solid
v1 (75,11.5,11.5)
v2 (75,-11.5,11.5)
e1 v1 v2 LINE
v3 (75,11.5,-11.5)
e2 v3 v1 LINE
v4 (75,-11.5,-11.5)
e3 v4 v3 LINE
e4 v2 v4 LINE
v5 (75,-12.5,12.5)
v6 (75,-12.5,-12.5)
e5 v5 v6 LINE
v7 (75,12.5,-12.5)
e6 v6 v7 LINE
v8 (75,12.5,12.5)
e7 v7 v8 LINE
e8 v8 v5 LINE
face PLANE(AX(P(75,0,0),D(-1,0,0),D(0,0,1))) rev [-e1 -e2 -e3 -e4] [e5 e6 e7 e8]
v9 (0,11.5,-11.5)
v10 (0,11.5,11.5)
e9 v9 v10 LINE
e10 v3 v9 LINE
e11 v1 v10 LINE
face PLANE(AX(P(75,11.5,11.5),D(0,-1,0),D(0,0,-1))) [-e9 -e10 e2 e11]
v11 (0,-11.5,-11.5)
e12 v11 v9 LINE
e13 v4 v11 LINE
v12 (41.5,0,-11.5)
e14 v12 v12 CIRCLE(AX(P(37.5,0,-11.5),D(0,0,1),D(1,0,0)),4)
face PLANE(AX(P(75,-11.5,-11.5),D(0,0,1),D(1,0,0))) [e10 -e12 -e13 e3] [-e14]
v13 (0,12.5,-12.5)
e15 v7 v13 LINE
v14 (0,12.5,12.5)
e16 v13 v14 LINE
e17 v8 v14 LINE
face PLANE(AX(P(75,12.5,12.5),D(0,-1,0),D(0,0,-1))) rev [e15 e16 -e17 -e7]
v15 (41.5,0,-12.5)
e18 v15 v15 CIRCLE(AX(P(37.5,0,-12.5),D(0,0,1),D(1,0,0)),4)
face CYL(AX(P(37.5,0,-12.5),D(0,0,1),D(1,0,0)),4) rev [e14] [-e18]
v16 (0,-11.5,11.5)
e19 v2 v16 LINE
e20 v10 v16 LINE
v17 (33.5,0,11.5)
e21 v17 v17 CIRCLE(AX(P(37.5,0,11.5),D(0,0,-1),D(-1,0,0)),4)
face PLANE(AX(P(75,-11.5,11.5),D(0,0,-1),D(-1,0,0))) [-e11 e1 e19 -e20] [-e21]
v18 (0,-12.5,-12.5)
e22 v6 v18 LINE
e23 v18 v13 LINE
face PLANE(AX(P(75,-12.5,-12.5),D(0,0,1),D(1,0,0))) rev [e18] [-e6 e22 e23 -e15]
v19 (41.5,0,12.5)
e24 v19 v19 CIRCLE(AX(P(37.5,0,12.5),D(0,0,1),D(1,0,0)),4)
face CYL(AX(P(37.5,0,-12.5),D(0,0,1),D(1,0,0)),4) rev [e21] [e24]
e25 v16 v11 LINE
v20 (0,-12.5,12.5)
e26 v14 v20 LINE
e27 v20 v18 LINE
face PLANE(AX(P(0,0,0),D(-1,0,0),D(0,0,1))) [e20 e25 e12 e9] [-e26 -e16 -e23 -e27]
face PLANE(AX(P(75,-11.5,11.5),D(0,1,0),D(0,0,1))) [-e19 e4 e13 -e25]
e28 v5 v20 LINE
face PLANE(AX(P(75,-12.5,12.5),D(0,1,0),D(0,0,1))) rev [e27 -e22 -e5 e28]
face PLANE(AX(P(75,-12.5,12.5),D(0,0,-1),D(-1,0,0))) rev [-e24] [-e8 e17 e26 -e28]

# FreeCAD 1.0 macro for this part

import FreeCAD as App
import Part
import Sketcher

V = App.Vector


def add_polygon(sketch, points):
    """Adds a closed chain of lines whose ends are joined by coincident constraints."""
    first, n = sketch.GeometryCount, len(points)
    for a, b in zip(points, points[1:] + points[:1]):
        sketch.addGeometry(Part.LineSegment(App.Vector(*a, 0), App.Vector(*b, 0)), False)
    for i in range(n):
        sketch.addConstraint(Sketcher.Constraint("Coincident", first + i, 2, first + (i + 1) % n, 1))

doc = App.newDocument("Part")
body = doc.addObject("PartDesign::Body", "Body")

# Sketch on YZ plane
sketch1 = body.newObject("Sketcher::SketchObject", "Sketch")
sketch1.AttachmentSupport = (doc.getObject("YZ_Plane"), [""])
sketch1.MapMode = "FlatFace"
add_polygon(sketch1, [(12.5, 12.5), (-12.5, 12.5), (-12.5, -12.5), (12.5, -12.5)])  # lines 0-3
add_polygon(sketch1, [(-11.5, -11.5), (-11.5, 11.5), (11.5, 11.5), (11.5, -11.5)])  # lines 4-7
sketch1.addConstraint(Sketcher.Constraint("Horizontal", 0))
sketch1.addConstraint(Sketcher.Constraint("Vertical", 1))
sketch1.addConstraint(Sketcher.Constraint("Horizontal", 2))
sketch1.addConstraint(Sketcher.Constraint("Vertical", 3))
sketch1.addConstraint(Sketcher.Constraint("Vertical", 4))
sketch1.addConstraint(Sketcher.Constraint("Horizontal", 5))
sketch1.addConstraint(Sketcher.Constraint("Vertical", 6))
sketch1.addConstraint(Sketcher.Constraint("Horizontal", 7))
sketch1.addConstraint(Sketcher.Constraint("Symmetric", 0, 2, 2, 2, -1, 1))
sketch1.addConstraint(Sketcher.Constraint("Symmetric", 4, 2, 6, 2, -1, 1))
sketch1.addConstraint(Sketcher.Constraint("Equal", 2, 1))
sketch1.addConstraint(Sketcher.Constraint("Equal", 7, 4))
sketch1.addConstraint(Sketcher.Constraint("DistanceX", 0, 2, 0, 1, 25.0))
sketch1.addConstraint(Sketcher.Constraint("DistanceX", 5, 1, 5, 2, 23.0))
pad1 = body.newObject("PartDesign::Pad", "Pad")
pad1.Profile = sketch1
pad1.Length = 75

# Sketch on XY plane
sketch2 = body.newObject("Sketcher::SketchObject", "Sketch001")
sketch2.AttachmentSupport = (doc.getObject("XY_Plane"), [""])
sketch2.MapMode = "FlatFace"
sketch2.AttachmentOffset = App.Placement(V(0, 0, 12.5), App.Rotation())
sketch2.addGeometry(Part.Circle(V(37.5, 0, 0), V(0, 0, 1), 4), False)
sketch2.addConstraint(Sketcher.Constraint("PointOnObject", 0, 3, -1))
sketch2.addConstraint(Sketcher.Constraint("Diameter", 0, 8.0))
sketch2.addConstraint(Sketcher.Constraint("DistanceX", -1, 1, 0, 3, 37.5))
pocket1 = body.newObject("PartDesign::Pocket", "Pocket")
pocket1.Profile = sketch2
pocket1.Type = "ThroughAll"

doc.recompute()
